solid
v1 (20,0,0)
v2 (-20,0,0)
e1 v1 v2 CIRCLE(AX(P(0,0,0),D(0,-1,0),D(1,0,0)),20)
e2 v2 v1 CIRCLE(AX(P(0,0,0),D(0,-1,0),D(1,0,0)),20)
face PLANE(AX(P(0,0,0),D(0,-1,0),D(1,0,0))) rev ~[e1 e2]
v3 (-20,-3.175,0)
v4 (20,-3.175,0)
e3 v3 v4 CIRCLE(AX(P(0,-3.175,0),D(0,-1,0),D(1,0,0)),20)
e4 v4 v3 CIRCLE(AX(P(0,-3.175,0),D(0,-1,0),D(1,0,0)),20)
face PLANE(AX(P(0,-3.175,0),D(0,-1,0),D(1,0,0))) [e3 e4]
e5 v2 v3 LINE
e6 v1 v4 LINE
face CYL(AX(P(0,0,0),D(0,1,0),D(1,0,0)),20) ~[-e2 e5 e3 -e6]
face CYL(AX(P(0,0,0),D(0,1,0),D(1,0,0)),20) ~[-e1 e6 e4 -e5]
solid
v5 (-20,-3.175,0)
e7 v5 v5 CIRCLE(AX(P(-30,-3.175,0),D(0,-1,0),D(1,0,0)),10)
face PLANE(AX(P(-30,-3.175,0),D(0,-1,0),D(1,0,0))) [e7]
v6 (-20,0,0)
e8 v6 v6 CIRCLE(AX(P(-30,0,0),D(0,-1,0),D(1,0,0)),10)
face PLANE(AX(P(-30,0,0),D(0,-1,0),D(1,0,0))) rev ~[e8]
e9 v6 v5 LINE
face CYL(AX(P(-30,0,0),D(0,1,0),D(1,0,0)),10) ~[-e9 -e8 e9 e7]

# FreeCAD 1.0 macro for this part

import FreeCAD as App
import Part
import Sketcher
from FreeCAD import Vector
Q = App.Units.Quantity

doc = App.newDocument("Part")
body = doc.addObject("PartDesign::Body", "Body")
body.AllowCompound = True

sketch1 = doc.addObject("Sketcher::SketchObject", "Sketch")
body.addObject(sketch1)
sketch1.AttachmentSupport = (doc.XZ_Plane, [""])
sketch1.MapMode = "FlatFace"
sketch1.addGeometry([
    Part.Circle(Vector(0, 0, 0), Vector(0, 0, 1), 20),
    Part.Circle(Vector(-30, 0, 0), Vector(0, 0, 1), 10),
], False)
sketch1.addConstraint([
    Sketcher.Constraint("Coincident", 0, 3, -1, 1),
    Sketcher.Constraint("PointOnObject", 1, 3, -1),
    Sketcher.Constraint("Diameter", 0, Q("40 mm")),
    Sketcher.Constraint("Diameter", 1, Q("20 mm")),
    Sketcher.Constraint("DistanceX", 1, 3, -1, 1, Q("30 mm")),
])
pad1 = doc.addObject("PartDesign::Pad", "Pad")
body.addObject(pad1)
pad1.Profile = sketch1
pad1.Length = 3.175

doc.recompute()
